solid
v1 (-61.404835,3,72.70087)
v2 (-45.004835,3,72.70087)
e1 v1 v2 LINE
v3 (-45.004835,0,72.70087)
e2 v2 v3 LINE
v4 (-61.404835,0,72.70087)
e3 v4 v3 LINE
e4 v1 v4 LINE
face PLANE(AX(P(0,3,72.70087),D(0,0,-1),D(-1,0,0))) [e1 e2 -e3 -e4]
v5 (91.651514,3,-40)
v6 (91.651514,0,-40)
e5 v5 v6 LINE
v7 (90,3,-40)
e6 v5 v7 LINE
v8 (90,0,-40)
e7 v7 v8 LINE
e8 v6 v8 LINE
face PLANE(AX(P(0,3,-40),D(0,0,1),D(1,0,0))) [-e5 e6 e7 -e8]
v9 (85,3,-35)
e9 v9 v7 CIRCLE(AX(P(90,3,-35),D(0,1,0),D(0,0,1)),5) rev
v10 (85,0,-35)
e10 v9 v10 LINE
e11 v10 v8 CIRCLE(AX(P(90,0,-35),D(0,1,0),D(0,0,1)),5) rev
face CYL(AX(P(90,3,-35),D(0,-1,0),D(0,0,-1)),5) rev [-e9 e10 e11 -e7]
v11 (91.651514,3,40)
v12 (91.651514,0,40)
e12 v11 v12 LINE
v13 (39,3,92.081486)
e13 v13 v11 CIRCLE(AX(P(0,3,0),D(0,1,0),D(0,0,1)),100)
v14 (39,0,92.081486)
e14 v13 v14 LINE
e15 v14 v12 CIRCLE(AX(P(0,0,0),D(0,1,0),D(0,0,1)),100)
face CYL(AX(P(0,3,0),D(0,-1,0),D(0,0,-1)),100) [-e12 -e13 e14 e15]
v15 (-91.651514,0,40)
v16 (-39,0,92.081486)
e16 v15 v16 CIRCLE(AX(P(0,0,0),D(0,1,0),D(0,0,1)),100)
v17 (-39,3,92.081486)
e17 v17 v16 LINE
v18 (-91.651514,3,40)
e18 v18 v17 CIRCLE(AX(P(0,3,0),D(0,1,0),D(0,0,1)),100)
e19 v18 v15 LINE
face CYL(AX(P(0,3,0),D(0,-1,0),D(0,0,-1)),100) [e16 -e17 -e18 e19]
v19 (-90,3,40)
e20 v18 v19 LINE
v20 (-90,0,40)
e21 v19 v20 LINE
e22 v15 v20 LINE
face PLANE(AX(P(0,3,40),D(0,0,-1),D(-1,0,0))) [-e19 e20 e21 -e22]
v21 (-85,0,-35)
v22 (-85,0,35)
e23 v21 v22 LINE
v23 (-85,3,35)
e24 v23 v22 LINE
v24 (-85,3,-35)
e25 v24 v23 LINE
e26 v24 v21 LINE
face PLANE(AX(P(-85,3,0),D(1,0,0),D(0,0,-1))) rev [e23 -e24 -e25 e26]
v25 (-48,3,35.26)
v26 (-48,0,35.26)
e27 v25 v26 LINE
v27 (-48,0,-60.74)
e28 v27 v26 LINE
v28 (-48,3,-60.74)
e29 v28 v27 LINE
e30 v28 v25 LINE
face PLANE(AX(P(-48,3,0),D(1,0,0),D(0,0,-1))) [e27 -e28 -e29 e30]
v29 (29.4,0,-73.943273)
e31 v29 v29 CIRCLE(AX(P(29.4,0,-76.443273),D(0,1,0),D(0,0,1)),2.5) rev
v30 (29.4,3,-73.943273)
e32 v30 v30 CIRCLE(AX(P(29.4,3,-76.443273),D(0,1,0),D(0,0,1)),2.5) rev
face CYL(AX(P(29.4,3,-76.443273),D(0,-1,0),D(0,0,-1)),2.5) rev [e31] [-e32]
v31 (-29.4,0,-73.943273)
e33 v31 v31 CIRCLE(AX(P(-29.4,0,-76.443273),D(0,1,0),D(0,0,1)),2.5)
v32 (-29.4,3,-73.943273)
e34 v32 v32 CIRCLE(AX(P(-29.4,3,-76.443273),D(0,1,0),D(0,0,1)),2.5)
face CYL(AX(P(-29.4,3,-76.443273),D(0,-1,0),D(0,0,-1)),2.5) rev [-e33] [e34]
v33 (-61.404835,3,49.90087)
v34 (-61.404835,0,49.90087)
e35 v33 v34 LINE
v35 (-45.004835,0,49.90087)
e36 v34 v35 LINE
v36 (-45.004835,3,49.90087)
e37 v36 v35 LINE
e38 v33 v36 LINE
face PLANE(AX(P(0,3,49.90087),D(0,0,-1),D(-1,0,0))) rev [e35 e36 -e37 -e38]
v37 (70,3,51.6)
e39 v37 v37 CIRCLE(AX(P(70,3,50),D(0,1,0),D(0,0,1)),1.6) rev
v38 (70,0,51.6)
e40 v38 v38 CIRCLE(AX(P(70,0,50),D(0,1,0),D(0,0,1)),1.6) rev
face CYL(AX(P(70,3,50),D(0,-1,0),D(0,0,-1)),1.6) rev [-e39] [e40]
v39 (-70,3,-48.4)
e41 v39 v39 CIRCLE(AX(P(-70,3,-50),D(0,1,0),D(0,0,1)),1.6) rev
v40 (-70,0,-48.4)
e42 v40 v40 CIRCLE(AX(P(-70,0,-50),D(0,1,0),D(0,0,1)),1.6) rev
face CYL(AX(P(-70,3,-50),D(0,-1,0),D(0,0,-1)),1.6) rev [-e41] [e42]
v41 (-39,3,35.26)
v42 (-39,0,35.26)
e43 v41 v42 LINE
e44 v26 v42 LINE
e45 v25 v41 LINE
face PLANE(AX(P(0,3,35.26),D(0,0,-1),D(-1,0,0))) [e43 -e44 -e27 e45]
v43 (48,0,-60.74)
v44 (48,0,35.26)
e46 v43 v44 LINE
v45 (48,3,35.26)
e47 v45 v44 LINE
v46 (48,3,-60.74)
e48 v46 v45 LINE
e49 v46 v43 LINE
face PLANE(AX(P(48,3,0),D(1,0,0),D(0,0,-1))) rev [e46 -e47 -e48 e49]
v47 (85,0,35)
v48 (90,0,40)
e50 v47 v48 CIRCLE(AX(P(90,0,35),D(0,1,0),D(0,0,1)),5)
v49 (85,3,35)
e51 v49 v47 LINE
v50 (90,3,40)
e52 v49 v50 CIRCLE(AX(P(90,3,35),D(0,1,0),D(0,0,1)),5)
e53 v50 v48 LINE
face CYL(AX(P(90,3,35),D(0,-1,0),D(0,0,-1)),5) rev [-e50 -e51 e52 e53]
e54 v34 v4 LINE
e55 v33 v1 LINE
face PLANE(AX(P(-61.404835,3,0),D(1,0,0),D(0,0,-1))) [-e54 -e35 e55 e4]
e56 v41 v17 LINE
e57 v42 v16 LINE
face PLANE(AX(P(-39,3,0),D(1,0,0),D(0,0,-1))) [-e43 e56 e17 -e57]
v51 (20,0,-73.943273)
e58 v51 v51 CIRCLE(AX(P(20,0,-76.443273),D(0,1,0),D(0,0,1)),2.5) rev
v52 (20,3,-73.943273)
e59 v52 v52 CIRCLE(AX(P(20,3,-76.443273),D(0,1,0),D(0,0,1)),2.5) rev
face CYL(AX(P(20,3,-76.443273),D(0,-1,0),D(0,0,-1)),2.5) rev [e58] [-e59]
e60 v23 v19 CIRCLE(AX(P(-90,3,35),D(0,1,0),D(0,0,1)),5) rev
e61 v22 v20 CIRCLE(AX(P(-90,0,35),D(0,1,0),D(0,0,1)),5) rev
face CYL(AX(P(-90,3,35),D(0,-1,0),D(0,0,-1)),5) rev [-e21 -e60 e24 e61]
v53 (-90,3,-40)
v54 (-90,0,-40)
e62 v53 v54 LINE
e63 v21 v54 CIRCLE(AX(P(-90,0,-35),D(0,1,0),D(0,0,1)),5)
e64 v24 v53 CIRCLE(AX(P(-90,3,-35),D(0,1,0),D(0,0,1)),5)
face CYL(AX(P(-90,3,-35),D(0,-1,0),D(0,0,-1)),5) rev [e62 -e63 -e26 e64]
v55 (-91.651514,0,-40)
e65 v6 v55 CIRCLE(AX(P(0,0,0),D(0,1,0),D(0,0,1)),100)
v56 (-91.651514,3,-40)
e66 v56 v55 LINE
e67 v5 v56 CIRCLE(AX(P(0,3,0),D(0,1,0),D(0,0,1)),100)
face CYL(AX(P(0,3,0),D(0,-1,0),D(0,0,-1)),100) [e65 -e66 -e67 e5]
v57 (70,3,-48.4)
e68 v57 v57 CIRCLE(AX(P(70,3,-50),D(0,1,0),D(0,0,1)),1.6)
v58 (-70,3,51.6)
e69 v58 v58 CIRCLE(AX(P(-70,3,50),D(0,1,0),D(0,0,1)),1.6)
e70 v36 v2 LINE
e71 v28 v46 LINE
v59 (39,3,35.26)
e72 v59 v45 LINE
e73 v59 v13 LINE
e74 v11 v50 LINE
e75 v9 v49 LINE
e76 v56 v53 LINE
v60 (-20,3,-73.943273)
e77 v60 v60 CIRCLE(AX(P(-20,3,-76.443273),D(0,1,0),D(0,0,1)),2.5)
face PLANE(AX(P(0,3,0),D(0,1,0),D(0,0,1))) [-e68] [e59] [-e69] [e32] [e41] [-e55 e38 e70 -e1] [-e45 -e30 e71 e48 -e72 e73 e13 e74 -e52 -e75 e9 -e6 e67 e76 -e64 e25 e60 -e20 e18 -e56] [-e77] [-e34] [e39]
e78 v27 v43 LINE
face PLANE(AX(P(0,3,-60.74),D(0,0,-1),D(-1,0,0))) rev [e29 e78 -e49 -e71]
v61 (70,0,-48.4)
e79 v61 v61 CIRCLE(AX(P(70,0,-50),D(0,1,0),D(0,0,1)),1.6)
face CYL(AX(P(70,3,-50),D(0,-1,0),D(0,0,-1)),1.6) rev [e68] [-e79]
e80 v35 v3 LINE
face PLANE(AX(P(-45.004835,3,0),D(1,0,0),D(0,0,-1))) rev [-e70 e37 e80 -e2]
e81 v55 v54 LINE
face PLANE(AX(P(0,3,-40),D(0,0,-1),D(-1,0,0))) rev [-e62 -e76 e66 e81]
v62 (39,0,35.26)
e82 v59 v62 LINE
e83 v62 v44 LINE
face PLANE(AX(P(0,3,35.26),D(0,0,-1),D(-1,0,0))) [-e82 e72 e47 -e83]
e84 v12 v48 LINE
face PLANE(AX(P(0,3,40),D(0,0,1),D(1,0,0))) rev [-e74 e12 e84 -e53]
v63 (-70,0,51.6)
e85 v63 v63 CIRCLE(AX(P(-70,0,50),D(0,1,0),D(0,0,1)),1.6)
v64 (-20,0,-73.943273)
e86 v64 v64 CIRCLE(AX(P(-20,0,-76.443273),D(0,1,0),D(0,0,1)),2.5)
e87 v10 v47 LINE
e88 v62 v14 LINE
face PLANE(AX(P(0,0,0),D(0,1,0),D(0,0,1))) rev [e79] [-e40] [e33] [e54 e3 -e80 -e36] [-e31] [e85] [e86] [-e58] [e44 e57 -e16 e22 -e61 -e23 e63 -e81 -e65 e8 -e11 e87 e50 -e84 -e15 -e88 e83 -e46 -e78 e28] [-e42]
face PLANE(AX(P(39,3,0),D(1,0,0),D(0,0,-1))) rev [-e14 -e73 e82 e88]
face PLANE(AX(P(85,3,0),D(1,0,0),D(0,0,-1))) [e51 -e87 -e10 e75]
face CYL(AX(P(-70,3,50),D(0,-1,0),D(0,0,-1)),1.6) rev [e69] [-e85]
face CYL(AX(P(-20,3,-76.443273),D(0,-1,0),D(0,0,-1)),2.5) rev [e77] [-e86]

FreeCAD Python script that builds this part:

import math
import FreeCAD as App
import Part
import Sketcher

V = App.Vector
Q = App.Units.Quantity


def add_polygon(sketch, points):
    """Adds a closed chain of lines whose ends are joined by coincident constraints."""
    first, n = sketch.GeometryCount, len(points)
    for a, b in zip(points, points[1:] + points[:1]):
        sketch.addGeometry(Part.LineSegment(App.Vector(*a, 0), App.Vector(*b, 0)), False)
    for i in range(n):
        sketch.addConstraint(Sketcher.Constraint("Coincident", first + i, 2, first + (i + 1) % n, 1))

doc = App.newDocument("Part")
body = doc.addObject("PartDesign::Body", "Body")

# Sketch on XZ plane
sketch1 = body.newObject("Sketcher::SketchObject", "Sketch")
sketch1.AttachmentSupport = (doc.getObject("XZ_Plane"), [""])
sketch1.MapMode = "FlatFace"
sketch1.addGeometry(Part.ArcOfCircle(Part.Circle(V(0, 0, 0), V(0, 0, 1), 100), math.radians(23.578178), math.radians(67.045501)), False)  # 0
sketch1.addGeometry(Part.LineSegment(V(91.651514, 40, 0), V(90, 40, 0)), False)  # 1
sketch1.addGeometry(Part.ArcOfCircle(Part.Circle(V(90, 35, 0), V(0, 0, 1), 5), math.radians(90), math.radians(180)), False)  # 2
sketch1.addGeometry(Part.LineSegment(V(85, 35, 0), V(85, -35, 0)), False)  # 3
sketch1.addGeometry(Part.ArcOfCircle(Part.Circle(V(90, -35, 0), V(0, 0, 1), 5), math.radians(180), math.radians(270)), False)  # 4
sketch1.addGeometry(Part.LineSegment(V(90, -40, 0), V(91.651514, -40, 0)), False)  # 5
sketch1.addGeometry(Part.ArcOfCircle(Part.Circle(V(0, 0, 0), V(0, 0, 1), 100), math.radians(-156.421822), math.radians(-23.578178)), False)  # 6
sketch1.addGeometry(Part.LineSegment(V(-91.651514, -40, 0), V(-90, -40, 0)), False)  # 7
sketch1.addGeometry(Part.ArcOfCircle(Part.Circle(V(-90, -35, 0), V(0, 0, 1), 5), math.radians(-90), math.radians(0)), False)  # 8
sketch1.addGeometry(Part.LineSegment(V(-85, -35, 0), V(-85, 35, 0)), False)  # 9
sketch1.addGeometry(Part.ArcOfCircle(Part.Circle(V(-90, 35, 0), V(0, 0, 1), 5), math.radians(0), math.radians(90)), False)  # 10
sketch1.addGeometry(Part.LineSegment(V(-90, 40, 0), V(-91.651514, 40, 0)), False)  # 11
sketch1.addGeometry(Part.ArcOfCircle(Part.Circle(V(0, 0, 0), V(0, 0, 1), 100), math.radians(112.954499), math.radians(156.421822)), False)  # 12
sketch1.addGeometry(Part.LineSegment(V(-39, 92.081486, 0), V(-39, 35.26, 0)), False)  # 13
sketch1.addGeometry(Part.LineSegment(V(-39, 35.26, 0), V(-48, 35.26, 0)), False)  # 14
sketch1.addGeometry(Part.LineSegment(V(-48, 35.26, 0), V(-48, -60.74, 0)), False)  # 15
sketch1.addGeometry(Part.LineSegment(V(-48, -60.74, 0), V(48, -60.74, 0)), False)  # 16
sketch1.addGeometry(Part.LineSegment(V(48, -60.74, 0), V(48, 35.26, 0)), False)  # 17
sketch1.addGeometry(Part.LineSegment(V(48, 35.26, 0), V(39, 35.26, 0)), False)  # 18
sketch1.addGeometry(Part.LineSegment(V(39, 35.26, 0), V(39, 92.081486, 0)), False)  # 19
add_polygon(sketch1, [(-45.004835, 72.70087), (-61.404835, 72.70087), (-61.404835, 49.90087), (-45.004835, 49.90087)])  # lines 20-23
sketch1.addGeometry(Part.Circle(V(-70, 50, 0), V(0, 0, 1), 1.6), False)  # 24
sketch1.addGeometry(Part.Circle(V(70, 50, 0), V(0, 0, 1), 1.6), False)  # 25
sketch1.addGeometry(Part.Circle(V(-70, -50, 0), V(0, 0, 1), 1.6), False)  # 26
sketch1.addGeometry(Part.Circle(V(-29.4, -76.443273, 0), V(0, 0, 1), 2.5), False)  # 27
sketch1.addGeometry(Part.Circle(V(-20, -76.443273, 0), V(0, 0, 1), 2.5), False)  # 28
sketch1.addGeometry(Part.Circle(V(20, -76.443273, 0), V(0, 0, 1), 2.5), False)  # 29
sketch1.addGeometry(Part.Circle(V(29.4, -76.443273, 0), V(0, 0, 1), 2.5), False)  # 30
sketch1.addGeometry(Part.Circle(V(70, -50, 0), V(0, 0, 1), 1.6), False)  # 31
sketch1.addConstraint(Sketcher.Constraint("Coincident", 0, 1, 1, 1))
sketch1.addConstraint(Sketcher.Constraint("Tangent", 1, 2, 2, 1))
sketch1.addConstraint(Sketcher.Constraint("Tangent", 2, 2, 3, 1))
sketch1.addConstraint(Sketcher.Constraint("Tangent", 3, 2, 4, 1))
sketch1.addConstraint(Sketcher.Constraint("Tangent", 4, 2, 5, 1))
sketch1.addConstraint(Sketcher.Constraint("Coincident", 5, 2, 6, 2))
sketch1.addConstraint(Sketcher.Constraint("Coincident", 6, 1, 7, 1))
sketch1.addConstraint(Sketcher.Constraint("Tangent", 7, 2, 8, 1))
sketch1.addConstraint(Sketcher.Constraint("Tangent", 8, 2, 9, 1))
sketch1.addConstraint(Sketcher.Constraint("Tangent", 9, 2, 10, 1))
sketch1.addConstraint(Sketcher.Constraint("Tangent", 10, 2, 11, 1))
sketch1.addConstraint(Sketcher.Constraint("Coincident", 11, 2, 12, 2))
sketch1.addConstraint(Sketcher.Constraint("Coincident", 12, 1, 13, 1))
sketch1.addConstraint(Sketcher.Constraint("Coincident", 13, 2, 14, 1))
sketch1.addConstraint(Sketcher.Constraint("Coincident", 14, 2, 15, 1))
sketch1.addConstraint(Sketcher.Constraint("Coincident", 15, 2, 16, 1))
sketch1.addConstraint(Sketcher.Constraint("Coincident", 16, 2, 17, 1))
sketch1.addConstraint(Sketcher.Constraint("Coincident", 17, 2, 18, 1))
sketch1.addConstraint(Sketcher.Constraint("Coincident", 18, 2, 19, 1))
sketch1.addConstraint(Sketcher.Constraint("Coincident", 19, 2, 0, 2))
sketch1.addConstraint(Sketcher.Constraint("Horizontal", 1))
sketch1.addConstraint(Sketcher.Constraint("Vertical", 3))
sketch1.addConstraint(Sketcher.Constraint("Horizontal", 5))
sketch1.addConstraint(Sketcher.Constraint("Horizontal", 7))
sketch1.addConstraint(Sketcher.Constraint("Vertical", 9))
sketch1.addConstraint(Sketcher.Constraint("Horizontal", 11))
sketch1.addConstraint(Sketcher.Constraint("Vertical", 13))
sketch1.addConstraint(Sketcher.Constraint("Horizontal", 14))
sketch1.addConstraint(Sketcher.Constraint("Vertical", 15))
sketch1.addConstraint(Sketcher.Constraint("Horizontal", 16))
sketch1.addConstraint(Sketcher.Constraint("Vertical", 17))
sketch1.addConstraint(Sketcher.Constraint("Horizontal", 18))
sketch1.addConstraint(Sketcher.Constraint("Vertical", 19))
sketch1.addConstraint(Sketcher.Constraint("Horizontal", 20))
sketch1.addConstraint(Sketcher.Constraint("Vertical", 21))
sketch1.addConstraint(Sketcher.Constraint("Horizontal", 22))
sketch1.addConstraint(Sketcher.Constraint("Vertical", 23))
sketch1.addConstraint(Sketcher.Constraint("Coincident", 0, 3, -1, 1))
sketch1.addConstraint(Sketcher.Constraint("Coincident", 6, 3, -1, 1))
sketch1.addConstraint(Sketcher.Constraint("Coincident", 12, 3, -1, 1))
sketch1.addConstraint(Sketcher.Constraint("Equal", 2, 4))
sketch1.addConstraint(Sketcher.Constraint("Equal", 0, 6))
sketch1.addConstraint(Sketcher.Constraint("Equal", 4, 8))
sketch1.addConstraint(Sketcher.Constraint("Equal", 8, 10))
sketch1.addConstraint(Sketcher.Constraint("Equal", 6, 12))
sketch1.addConstraint(Sketcher.Constraint("Equal", 24, 25))
sketch1.addConstraint(Sketcher.Constraint("Equal", 25, 26))
sketch1.addConstraint(Sketcher.Constraint("Equal", 27, 28))
sketch1.addConstraint(Sketcher.Constraint("Equal", 28, 29))
sketch1.addConstraint(Sketcher.Constraint("Equal", 29, 30))
sketch1.addConstraint(Sketcher.Constraint("Equal", 26, 31))
sketch1.addConstraint(Sketcher.Constraint("Symmetric", 2, 3, 8, 3, -1, 1))
sketch1.addConstraint(Sketcher.Constraint("Symmetric", 25, 3, 26, 3, -1, 1))
sketch1.addConstraint(Sketcher.Constraint("Symmetric", 24, 3, 31, 3, -1, 1))
sketch1.addConstraint(Sketcher.Constraint("Symmetric", 24, 3, 25, 3, -2))
sketch1.addConstraint(Sketcher.Constraint("Symmetric", 28, 3, 29, 3, -2))
sketch1.addConstraint(Sketcher.Constraint("Symmetric", 27, 3, 30, 3, -2))
sketch1.addConstraint(Sketcher.Constraint("Symmetric", 14, 2, 17, 2, -2))
sketch1.addConstraint(Sketcher.Constraint("Horizontal", 4, 3, 8, 3))
sketch1.addConstraint(Sketcher.Constraint("Horizontal", 2, 3, 10, 3))
sketch1.addConstraint(Sketcher.Constraint("Horizontal", 27, 3, 28, 3))
sketch1.addConstraint(Sketcher.Constraint("Horizontal", 12, 1, 19, 2))
sketch1.addConstraint(Sketcher.Constraint("Equal", 16, 15))
sketch1.addConstraint(Sketcher.Constraint("Diameter", 27, Q("5 mm")))
sketch1.addConstraint(Sketcher.Constraint("Radius", 0, Q("100 mm")))
sketch1.addConstraint(Sketcher.Constraint("Radius", 2, Q("5 mm")))
sketch1.addConstraint(Sketcher.Constraint("Diameter", 24, Q("3.2 mm")))
sketch1.addConstraint(Sketcher.Constraint("DistanceX", 14, 2, 14, 1, Q("9 mm")))
sketch1.addConstraint(Sketcher.Constraint("DistanceX", 16, 1, 16, 2, Q("96 mm")))
sketch1.addConstraint(Sketcher.Constraint("DistanceY", 3, 2, 3, 1, Q("70 mm")))
sketch1.addConstraint(Sketcher.Constraint("DistanceX", 20, 2, 20, 1, Q("16.4 mm")))
sketch1.addConstraint(Sketcher.Constraint("DistanceY", 21, 2, 21, 1, Q("22.8 mm")))
sketch1.addConstraint(Sketcher.Constraint("DistanceX", -1, 1, 2, 3, Q("90 mm")))
sketch1.addConstraint(Sketcher.Constraint("DistanceX", 24, 3, -1, 1, Q("70 mm")))
sketch1.addConstraint(Sketcher.Constraint("DistanceY", -1, 1, 24, 3, Q("50 mm")))
sketch1.addConstraint(Sketcher.Constraint("DistanceX", 28, 3, -1, 1, Q("20 mm")))
sketch1.addConstraint(Sketcher.Constraint("DistanceX", 27, 3, -1, 1, Q("29.4 mm")))
sketch1.addConstraint(Sketcher.Constraint("DistanceY", -1, 1, 13, 2, Q("35.26 mm")))
sketch1.addConstraint(Sketcher.Constraint("DistanceY", -1, 1, 20, 2, Q("72.70087 mm")))
sketch1.addConstraint(Sketcher.Constraint("DistanceY", 27, 3, -1, 1, Q("76.443273 mm")))
sketch1.addConstraint(Sketcher.Constraint("DistanceX", 20, 2, -1, 1, Q("61.404835 mm")))
pad1 = body.newObject("PartDesign::Pad", "Pad")
pad1.Profile = sketch1
pad1.Length = 3
pad1.Reversed = True

doc.recompute()
